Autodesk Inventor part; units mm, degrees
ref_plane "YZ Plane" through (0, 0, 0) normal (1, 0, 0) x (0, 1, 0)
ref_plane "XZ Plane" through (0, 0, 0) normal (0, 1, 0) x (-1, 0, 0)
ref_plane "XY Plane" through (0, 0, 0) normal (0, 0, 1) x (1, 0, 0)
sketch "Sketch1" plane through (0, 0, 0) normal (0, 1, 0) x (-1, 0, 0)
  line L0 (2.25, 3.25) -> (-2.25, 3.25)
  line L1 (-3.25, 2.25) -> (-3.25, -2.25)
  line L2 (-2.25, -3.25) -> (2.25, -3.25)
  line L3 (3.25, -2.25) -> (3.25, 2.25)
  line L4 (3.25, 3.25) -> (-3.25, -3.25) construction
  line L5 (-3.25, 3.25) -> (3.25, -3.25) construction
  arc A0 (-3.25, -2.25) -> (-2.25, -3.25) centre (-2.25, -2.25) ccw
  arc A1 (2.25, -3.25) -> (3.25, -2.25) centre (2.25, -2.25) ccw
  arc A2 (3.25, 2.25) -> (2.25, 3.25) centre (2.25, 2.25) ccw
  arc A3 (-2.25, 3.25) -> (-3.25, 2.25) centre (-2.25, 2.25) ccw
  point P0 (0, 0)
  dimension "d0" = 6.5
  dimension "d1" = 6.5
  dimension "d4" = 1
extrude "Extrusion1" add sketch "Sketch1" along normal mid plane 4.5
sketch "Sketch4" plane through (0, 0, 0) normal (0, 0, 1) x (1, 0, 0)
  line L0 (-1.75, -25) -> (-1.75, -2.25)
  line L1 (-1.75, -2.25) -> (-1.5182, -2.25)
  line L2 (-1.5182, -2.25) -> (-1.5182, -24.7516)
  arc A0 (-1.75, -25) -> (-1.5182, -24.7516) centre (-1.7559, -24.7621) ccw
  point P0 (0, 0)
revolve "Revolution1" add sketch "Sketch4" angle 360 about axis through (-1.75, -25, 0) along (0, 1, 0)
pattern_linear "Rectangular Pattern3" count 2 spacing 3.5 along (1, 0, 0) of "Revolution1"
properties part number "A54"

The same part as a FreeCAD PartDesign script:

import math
import FreeCAD as App
import Part
import Sketcher

V = App.Vector
Q = App.Units.Quantity

doc = App.newDocument("Part")
body = doc.addObject("PartDesign::Body", "Body")

# Sketch on XZ plane
sketch1 = body.newObject("Sketcher::SketchObject", "Sketch")
sketch1.AttachmentSupport = (doc.getObject("XZ_Plane"), [""])
sketch1.MapMode = "FlatFace"
sketch1.addGeometry([
    Part.ArcOfCircle(Part.Circle(V(-2.2, 2.2, 0), V(0, 0, 1), 1), math.radians(90), math.radians(180)),  # 0
    Part.LineSegment(V(-2.2, 3.2, 0), V(2.2, 3.2, 0)),  # 1
    Part.ArcOfCircle(Part.Circle(V(2.2, 2.2, 0), V(0, 0, 1), 1), math.radians(0), math.radians(90)),  # 2
    Part.LineSegment(V(3.2, 2.2, 0), V(3.2, -2.2, 0)),  # 3
    Part.ArcOfCircle(Part.Circle(V(2.2, -2.2, 0), V(0, 0, 1), 1), math.radians(-90), math.radians(0)),  # 4
    Part.LineSegment(V(2.2, -3.2, 0), V(-2.2, -3.2, 0)),  # 5
    Part.ArcOfCircle(Part.Circle(V(-2.2, -2.2, 0), V(0, 0, 1), 1), math.radians(180), math.radians(270)),  # 6
    Part.LineSegment(V(-3.2, -2.2, 0), V(-3.2, 2.2, 0)),  # 7
], False)
sketch1.addConstraint([
    Sketcher.Constraint("Tangent", 0, 1, 1, 1),
    Sketcher.Constraint("Tangent", 1, 2, 2, 2),
    Sketcher.Constraint("Tangent", 2, 1, 3, 1),
    Sketcher.Constraint("Tangent", 3, 2, 4, 2),
    Sketcher.Constraint("Tangent", 4, 1, 5, 1),
    Sketcher.Constraint("Tangent", 5, 2, 6, 2),
    Sketcher.Constraint("Tangent", 6, 1, 7, 1),
    Sketcher.Constraint("Tangent", 7, 2, 0, 2),
    Sketcher.Constraint("Horizontal", 1),
    Sketcher.Constraint("Vertical", 3),
    Sketcher.Constraint("Horizontal", 5),
    Sketcher.Constraint("Vertical", 7),
    Sketcher.Constraint("Equal", 0, 2),
    Sketcher.Constraint("Equal", 2, 4),
    Sketcher.Constraint("Equal", 4, 6),
    Sketcher.Constraint("Symmetric", 0, 3, 4, 3, -1, 1),
    Sketcher.Constraint("Equal", 5, 3),
    Sketcher.Constraint("Radius", 0, Q("1 mm")),
    Sketcher.Constraint("DistanceX", 1, 1, 1, 2, Q("4.5 mm")),
])
pad1 = body.newObject("PartDesign::Pad", "Pad")
pad1.Profile = sketch1
pad1.Length = 4.5
pad1.Midplane = True

# Sketch on XY plane
sketch2 = body.newObject("Sketcher::SketchObject", "Sketch001")
sketch2.AttachmentSupport = (doc.getObject("XY_Plane"), [""])
sketch2.MapMode = "FlatFace"
sketch2.addGeometry([
    Part.LineSegment(V(-1.75, -2.25, 0), V(-1.75, -25, 0)),
    Part.ArcOfCircle(Part.Circle(V(-1.76, -24.76, 0), V(0, 0, 1), 0.24), math.radians(-89), math.radians(3)),
    Part.LineSegment(V(-1.52, -24.75, 0), V(-1.52, -2.25, 0)),
    Part.LineSegment(V(-1.52, -2.25, 0), V(-1.75, -2.25, 0)),
], False)
sketch2.addGeometry(Part.LineSegment(V(-1.75, -25, 0), V(-1.75, -2.25, 0)), True)  # axis
sketch2.addConstraint([
    Sketcher.Constraint("Coincident", 0, 2, 1, 1),
    Sketcher.Constraint("Coincident", 1, 2, 2, 1),
    Sketcher.Constraint("Coincident", 2, 2, 3, 1),
    Sketcher.Constraint("Coincident", 3, 2, 0, 1),
    Sketcher.Constraint("Vertical", 0),
    Sketcher.Constraint("Vertical", 2),
    Sketcher.Constraint("Horizontal", 3),
    Sketcher.Constraint("Vertical", 4),
    Sketcher.Constraint("Coincident", 4, 1, 0, 2),
    Sketcher.Constraint("Horizontal", 2, 2, 4, 2),
    Sketcher.Constraint("DistanceY", 0, 2, -1, 1, Q("25 mm")),
    Sketcher.Constraint("Radius", 1, Q("0.238 mm")),
    Sketcher.Constraint("DistanceY", 0, 2, 0, 1, Q("22.75 mm")),
    Sketcher.Constraint("DistanceX", 0, 2, -1, 1, Q("1.75 mm")),
    Sketcher.Constraint("DistanceX", 3, 2, 3, 1, Q("0.2318 mm")),
    Sketcher.Constraint("DistanceY", 2, 1, 2, 2, Q("22.5016 mm")),
])
revolution = body.newObject("PartDesign::Revolution", "Revolution")
revolution.Profile = sketch2
revolution.ReferenceAxis = (sketch2, ["Axis0"])
revolution.Angle = 360
doc.recompute()

linearpattern = body.newObject("PartDesign::LinearPattern", "LinearPattern")
linearpattern.Originals = [revolution]
linearpattern.Direction = (doc.getObject("X_Axis"), [""])
linearpattern.Mode = "offset"
linearpattern.Offset = 3.5
linearpattern.Occurrences = 2
body.Tip = linearpattern

doc.recompute()
